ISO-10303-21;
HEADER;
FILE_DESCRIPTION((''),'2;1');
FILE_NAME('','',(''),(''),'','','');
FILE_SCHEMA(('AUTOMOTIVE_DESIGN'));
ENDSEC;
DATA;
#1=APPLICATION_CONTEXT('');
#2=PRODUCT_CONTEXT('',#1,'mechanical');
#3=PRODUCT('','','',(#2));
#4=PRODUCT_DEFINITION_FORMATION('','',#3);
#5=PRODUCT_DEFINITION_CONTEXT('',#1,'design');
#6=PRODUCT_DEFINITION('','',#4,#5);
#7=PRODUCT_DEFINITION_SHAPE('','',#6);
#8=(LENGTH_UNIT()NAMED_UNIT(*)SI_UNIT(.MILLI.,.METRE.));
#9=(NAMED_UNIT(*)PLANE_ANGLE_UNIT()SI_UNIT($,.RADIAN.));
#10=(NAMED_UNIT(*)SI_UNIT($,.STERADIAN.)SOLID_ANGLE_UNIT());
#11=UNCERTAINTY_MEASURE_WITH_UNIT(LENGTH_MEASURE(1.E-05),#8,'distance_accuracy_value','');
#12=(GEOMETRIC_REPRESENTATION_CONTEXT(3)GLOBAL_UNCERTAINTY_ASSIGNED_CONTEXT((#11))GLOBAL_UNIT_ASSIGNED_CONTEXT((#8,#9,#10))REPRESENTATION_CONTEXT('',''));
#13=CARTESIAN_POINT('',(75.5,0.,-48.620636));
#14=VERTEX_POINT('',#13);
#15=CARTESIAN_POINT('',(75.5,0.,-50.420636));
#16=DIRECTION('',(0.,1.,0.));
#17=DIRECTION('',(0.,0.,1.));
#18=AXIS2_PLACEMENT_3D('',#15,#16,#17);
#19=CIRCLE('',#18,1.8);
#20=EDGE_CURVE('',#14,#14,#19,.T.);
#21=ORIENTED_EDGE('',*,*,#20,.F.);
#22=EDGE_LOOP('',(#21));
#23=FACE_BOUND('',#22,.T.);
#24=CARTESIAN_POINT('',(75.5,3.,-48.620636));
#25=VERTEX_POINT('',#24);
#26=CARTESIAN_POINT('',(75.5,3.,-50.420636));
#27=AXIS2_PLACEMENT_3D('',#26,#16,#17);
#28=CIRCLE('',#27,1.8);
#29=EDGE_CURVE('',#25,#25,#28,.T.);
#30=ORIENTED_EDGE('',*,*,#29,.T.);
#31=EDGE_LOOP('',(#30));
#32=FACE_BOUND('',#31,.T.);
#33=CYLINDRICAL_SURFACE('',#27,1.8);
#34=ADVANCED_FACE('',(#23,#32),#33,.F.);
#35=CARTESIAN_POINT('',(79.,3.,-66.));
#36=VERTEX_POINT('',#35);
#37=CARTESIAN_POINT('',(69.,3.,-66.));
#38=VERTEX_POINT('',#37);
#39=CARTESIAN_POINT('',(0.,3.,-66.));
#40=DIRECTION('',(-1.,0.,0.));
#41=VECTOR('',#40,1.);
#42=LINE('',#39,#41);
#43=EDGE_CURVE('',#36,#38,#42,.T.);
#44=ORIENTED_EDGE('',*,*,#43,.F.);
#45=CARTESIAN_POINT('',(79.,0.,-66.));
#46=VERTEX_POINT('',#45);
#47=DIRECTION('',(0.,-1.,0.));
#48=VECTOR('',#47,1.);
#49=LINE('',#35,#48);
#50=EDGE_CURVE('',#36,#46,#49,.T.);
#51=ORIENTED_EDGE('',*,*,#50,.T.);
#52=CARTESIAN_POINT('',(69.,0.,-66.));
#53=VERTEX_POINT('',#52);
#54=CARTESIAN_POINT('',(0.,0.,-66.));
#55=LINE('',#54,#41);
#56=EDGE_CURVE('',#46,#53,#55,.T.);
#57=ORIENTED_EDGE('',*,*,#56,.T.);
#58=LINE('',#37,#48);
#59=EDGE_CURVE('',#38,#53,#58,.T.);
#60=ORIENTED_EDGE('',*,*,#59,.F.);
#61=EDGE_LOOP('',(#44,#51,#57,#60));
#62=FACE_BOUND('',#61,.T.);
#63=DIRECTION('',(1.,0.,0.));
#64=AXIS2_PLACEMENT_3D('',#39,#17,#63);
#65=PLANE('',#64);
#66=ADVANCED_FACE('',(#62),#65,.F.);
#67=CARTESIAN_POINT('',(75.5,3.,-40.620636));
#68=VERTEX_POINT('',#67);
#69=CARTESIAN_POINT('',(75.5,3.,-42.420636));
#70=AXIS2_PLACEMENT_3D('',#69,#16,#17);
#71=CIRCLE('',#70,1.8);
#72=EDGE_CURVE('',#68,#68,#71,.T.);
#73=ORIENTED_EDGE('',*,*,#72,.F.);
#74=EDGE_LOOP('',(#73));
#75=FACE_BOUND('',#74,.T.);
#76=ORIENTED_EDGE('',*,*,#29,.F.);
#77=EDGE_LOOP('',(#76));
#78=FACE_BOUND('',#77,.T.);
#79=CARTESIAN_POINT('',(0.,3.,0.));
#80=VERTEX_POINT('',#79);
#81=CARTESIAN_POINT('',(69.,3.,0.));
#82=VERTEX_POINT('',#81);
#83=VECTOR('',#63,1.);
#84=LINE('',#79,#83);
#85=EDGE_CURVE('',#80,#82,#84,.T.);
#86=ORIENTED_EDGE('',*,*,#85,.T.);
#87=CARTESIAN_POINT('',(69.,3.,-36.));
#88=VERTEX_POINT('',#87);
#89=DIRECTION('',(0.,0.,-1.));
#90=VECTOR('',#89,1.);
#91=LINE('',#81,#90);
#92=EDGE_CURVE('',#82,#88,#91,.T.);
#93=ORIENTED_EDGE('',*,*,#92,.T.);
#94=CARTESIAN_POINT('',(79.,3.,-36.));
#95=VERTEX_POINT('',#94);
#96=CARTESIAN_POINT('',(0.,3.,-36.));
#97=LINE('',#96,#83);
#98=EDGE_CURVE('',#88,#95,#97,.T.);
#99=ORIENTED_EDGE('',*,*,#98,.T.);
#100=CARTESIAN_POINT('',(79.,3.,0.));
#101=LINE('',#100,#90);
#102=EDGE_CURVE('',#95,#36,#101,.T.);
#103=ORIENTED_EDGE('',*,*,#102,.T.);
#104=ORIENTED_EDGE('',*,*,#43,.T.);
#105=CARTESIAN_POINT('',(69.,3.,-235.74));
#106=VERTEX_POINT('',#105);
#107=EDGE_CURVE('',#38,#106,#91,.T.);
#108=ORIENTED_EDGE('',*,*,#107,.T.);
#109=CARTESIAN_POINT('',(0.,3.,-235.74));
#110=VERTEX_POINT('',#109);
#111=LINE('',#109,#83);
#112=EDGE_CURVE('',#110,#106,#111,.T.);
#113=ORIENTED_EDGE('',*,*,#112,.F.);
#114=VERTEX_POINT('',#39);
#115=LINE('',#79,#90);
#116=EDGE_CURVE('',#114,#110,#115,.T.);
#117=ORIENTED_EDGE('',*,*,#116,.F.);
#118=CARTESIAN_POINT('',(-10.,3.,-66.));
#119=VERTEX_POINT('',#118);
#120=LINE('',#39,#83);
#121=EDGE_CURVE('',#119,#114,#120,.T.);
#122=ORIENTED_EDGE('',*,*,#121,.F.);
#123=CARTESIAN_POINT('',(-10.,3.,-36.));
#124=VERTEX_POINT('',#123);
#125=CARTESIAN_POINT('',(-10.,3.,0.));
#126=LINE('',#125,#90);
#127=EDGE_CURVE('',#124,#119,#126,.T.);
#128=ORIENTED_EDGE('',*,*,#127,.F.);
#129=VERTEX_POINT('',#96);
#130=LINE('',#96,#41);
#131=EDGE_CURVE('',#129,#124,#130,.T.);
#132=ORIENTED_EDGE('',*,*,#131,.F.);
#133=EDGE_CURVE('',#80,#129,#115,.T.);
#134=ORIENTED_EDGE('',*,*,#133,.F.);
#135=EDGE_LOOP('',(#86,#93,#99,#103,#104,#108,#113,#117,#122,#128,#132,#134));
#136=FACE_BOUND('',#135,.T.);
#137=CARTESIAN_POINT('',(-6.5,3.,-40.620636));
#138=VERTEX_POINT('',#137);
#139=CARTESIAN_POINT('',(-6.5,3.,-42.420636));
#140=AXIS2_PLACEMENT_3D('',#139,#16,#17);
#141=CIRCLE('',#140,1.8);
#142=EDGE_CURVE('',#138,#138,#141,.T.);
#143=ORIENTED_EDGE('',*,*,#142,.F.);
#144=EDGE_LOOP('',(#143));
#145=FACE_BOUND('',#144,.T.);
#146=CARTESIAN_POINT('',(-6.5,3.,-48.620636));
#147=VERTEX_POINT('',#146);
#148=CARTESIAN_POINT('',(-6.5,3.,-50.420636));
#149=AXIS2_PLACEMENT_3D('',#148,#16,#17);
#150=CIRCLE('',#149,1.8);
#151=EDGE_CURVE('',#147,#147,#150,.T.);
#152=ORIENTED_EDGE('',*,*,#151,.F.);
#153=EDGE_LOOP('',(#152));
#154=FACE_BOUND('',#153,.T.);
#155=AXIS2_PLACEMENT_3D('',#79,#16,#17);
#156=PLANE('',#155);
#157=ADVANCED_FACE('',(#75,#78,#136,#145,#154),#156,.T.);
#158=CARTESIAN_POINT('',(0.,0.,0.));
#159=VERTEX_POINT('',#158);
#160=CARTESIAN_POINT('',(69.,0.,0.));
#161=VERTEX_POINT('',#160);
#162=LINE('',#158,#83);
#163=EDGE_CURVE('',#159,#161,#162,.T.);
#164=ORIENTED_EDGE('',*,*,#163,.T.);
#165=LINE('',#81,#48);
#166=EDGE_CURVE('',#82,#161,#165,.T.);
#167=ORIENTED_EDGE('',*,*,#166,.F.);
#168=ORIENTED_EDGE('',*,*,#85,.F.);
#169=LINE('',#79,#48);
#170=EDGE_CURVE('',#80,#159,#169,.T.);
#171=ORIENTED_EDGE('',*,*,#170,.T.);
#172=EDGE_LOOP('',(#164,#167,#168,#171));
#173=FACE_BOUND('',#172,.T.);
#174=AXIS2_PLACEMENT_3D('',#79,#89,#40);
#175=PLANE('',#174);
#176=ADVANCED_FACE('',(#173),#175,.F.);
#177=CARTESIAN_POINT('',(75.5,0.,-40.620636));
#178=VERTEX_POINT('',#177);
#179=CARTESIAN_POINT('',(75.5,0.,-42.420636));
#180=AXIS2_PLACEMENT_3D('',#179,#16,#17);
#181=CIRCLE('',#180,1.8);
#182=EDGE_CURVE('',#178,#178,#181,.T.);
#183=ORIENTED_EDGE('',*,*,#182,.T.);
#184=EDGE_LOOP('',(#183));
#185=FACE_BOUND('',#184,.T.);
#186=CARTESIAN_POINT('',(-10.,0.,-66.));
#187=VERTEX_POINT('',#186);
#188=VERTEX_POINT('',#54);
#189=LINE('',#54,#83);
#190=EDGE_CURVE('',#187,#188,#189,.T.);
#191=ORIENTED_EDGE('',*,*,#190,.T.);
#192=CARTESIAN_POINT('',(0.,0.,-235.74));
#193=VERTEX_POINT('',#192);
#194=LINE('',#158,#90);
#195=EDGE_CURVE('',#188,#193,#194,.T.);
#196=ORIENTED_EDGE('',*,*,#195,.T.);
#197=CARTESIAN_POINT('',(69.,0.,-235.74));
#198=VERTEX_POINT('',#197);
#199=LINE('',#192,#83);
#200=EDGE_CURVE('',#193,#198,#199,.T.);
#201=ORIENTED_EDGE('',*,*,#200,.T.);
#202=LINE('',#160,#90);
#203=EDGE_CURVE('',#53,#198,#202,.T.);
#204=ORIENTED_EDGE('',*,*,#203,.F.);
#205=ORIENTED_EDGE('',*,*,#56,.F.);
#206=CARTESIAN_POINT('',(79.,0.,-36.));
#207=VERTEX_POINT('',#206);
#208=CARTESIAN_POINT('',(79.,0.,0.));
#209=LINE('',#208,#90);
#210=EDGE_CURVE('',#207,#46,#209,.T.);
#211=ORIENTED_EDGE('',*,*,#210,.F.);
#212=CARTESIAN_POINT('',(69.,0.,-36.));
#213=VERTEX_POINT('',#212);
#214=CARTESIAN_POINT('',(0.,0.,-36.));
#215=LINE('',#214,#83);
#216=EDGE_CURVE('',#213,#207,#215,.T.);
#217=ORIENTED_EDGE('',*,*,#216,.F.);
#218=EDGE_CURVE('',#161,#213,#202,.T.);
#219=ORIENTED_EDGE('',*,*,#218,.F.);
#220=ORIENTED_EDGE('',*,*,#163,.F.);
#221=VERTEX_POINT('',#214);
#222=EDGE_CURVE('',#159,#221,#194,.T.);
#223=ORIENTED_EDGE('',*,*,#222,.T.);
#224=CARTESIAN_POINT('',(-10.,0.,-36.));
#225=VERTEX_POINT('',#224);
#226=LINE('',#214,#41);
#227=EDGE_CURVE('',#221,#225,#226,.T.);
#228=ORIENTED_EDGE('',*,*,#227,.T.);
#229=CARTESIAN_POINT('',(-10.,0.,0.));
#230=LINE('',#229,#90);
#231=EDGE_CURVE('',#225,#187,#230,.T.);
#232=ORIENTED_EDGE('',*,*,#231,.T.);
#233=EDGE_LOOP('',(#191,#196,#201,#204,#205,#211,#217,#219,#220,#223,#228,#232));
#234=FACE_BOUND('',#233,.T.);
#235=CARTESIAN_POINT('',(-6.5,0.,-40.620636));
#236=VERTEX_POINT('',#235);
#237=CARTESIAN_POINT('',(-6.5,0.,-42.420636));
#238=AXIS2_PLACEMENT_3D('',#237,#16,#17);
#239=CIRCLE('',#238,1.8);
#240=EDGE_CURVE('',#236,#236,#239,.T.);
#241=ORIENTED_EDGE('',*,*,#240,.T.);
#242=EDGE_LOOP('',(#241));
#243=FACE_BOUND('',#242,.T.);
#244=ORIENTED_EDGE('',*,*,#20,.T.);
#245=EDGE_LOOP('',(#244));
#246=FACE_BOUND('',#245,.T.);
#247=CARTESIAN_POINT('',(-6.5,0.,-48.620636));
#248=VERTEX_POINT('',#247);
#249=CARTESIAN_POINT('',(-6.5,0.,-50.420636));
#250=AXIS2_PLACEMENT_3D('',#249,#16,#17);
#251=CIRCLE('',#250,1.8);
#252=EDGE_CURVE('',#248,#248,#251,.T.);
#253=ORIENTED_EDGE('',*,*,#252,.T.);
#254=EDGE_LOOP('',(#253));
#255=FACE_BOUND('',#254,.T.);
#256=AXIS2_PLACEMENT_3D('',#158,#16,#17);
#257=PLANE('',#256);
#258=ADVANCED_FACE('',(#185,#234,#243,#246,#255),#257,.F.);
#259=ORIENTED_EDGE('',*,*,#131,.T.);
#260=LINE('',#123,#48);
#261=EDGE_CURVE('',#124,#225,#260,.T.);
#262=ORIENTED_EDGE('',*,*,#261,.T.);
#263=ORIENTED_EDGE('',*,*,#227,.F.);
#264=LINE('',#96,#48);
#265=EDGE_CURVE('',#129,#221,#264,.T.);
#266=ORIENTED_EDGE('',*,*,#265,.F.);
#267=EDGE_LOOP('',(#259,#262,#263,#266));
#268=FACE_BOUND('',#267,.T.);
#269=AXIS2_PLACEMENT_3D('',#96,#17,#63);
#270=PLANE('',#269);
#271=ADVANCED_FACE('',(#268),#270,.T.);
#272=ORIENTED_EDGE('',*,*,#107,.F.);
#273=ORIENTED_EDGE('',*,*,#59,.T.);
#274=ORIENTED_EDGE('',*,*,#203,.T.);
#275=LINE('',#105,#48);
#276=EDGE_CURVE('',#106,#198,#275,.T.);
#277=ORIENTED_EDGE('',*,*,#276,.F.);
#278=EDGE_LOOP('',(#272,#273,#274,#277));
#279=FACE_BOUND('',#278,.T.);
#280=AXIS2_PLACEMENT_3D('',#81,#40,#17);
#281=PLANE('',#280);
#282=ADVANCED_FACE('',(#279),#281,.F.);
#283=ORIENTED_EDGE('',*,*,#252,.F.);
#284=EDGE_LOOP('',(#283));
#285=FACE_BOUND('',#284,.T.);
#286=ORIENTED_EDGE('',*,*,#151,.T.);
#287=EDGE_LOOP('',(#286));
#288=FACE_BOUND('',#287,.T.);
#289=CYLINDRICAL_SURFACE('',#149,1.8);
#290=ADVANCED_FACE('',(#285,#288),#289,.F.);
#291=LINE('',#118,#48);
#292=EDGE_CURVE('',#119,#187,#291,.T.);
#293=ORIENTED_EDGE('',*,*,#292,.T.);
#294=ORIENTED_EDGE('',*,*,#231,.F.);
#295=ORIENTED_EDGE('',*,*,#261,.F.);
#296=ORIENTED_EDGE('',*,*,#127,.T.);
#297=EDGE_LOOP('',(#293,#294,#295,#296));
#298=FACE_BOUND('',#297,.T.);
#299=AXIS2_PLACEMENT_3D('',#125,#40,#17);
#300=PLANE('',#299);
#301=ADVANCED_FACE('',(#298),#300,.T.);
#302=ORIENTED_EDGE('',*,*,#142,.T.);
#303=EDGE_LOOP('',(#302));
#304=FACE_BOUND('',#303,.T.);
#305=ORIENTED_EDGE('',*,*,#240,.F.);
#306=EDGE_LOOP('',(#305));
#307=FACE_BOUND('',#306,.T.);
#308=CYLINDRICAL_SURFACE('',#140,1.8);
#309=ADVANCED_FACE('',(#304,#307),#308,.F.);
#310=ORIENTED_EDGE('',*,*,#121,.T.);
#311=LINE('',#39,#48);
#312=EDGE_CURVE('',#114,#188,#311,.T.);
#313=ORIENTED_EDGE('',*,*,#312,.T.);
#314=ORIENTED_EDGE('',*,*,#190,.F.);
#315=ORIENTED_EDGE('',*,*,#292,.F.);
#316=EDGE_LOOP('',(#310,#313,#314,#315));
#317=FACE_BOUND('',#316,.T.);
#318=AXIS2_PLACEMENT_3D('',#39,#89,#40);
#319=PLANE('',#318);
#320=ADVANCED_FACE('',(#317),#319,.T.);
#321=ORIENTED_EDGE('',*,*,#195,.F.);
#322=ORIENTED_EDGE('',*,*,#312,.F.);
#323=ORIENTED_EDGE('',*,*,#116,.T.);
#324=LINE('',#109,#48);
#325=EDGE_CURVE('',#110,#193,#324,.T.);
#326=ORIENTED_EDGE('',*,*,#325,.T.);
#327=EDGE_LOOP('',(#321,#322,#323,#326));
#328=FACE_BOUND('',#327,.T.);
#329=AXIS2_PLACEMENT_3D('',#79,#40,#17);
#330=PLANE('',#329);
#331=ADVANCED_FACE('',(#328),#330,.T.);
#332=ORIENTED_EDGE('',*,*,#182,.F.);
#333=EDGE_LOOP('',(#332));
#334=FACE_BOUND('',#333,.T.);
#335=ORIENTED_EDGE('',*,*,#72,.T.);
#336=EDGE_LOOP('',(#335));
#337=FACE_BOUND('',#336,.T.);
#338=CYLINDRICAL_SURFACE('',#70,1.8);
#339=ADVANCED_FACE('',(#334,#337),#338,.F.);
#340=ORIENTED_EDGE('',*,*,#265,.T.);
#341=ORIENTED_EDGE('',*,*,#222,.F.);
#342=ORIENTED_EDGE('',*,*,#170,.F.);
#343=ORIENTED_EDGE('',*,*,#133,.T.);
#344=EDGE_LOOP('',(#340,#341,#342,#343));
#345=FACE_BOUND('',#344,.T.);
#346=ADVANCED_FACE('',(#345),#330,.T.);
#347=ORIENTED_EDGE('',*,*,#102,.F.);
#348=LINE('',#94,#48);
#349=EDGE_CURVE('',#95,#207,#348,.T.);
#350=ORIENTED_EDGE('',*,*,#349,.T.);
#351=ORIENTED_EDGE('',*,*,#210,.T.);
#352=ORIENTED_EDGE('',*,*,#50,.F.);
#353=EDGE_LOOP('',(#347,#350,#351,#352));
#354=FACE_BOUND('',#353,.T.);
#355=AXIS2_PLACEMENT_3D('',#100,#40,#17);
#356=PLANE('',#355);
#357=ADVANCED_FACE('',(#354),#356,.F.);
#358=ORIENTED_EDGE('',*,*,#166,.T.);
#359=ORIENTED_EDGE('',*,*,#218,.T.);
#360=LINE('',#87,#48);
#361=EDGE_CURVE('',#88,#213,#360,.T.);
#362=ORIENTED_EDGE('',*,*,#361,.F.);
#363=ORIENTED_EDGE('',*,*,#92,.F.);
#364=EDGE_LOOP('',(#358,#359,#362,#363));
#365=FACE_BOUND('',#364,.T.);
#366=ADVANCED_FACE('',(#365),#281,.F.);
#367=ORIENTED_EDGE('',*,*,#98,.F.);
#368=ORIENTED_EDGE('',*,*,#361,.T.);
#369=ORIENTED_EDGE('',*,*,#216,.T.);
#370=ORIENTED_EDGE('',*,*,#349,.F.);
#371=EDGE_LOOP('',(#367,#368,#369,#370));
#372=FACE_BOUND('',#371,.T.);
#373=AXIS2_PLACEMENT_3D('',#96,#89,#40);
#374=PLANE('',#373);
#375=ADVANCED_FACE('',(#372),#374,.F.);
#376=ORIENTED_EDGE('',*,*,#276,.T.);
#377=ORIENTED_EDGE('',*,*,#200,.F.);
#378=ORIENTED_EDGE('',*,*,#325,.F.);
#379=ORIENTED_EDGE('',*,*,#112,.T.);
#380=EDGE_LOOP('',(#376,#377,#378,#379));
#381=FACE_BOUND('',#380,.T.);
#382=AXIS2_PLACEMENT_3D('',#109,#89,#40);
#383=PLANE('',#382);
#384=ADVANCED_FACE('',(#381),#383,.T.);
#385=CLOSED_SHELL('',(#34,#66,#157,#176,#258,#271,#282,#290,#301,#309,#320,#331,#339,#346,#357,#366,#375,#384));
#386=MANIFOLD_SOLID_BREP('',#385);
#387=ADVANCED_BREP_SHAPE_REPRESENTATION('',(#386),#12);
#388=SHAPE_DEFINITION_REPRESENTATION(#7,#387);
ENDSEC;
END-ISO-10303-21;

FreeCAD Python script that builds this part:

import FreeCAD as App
import Part
import Sketcher
Q = App.Units.Quantity


def add_polygon(sketch, points):
    """Adds a closed chain of lines whose ends are joined by coincident constraints."""
    first, n = sketch.GeometryCount, len(points)
    for a, b in zip(points, points[1:] + points[:1]):
        sketch.addGeometry(Part.LineSegment(App.Vector(*a, 0), App.Vector(*b, 0)), False)
    for i in range(n):
        sketch.addConstraint(Sketcher.Constraint("Coincident", first + i, 2, first + (i + 1) % n, 1))

doc = App.newDocument("Part")
params = doc.addObject("Spreadsheet::Sheet", "Params")
for row, (alias, value) in enumerate([
    ("sketch1_width", "10 mm"),
    ("sketch1_width2", "69 mm"),
    ("sketch1_height", "30 mm"),
    ("sketch1_height2", "36 mm"),
    ("sketch1_height3", "169.74 mm"),
    ("pad1_length", "3 mm"),
    ("sketch2_diameter", "3.6 mm"),
    ("hole_diameter", "3.6 mm"),
], start=1):
    params.set(f"A{row}", alias)
    params.set(f"B{row}", "=" + value)
    params.setAlias(f"B{row}", alias)

body = doc.addObject("PartDesign::Body", "Body")

# Sketch on XZ plane
sketch1 = body.newObject("Sketcher::SketchObject", "Sketch")
sketch1.AttachmentSupport = (doc.getObject("XZ_Plane"), [""])
sketch1.MapMode = "FlatFace"
add_polygon(sketch1, [(-10, -66), (-10, -36), (0, -36), (0, 0), (69, 0), (69, -36), (79, -36), (79, -66), (69, -66), (69, -236), (0, -236), (0, -66)])  # lines 0-11
sketch1.addConstraint(Sketcher.Constraint("Vertical", 0))
sketch1.addConstraint(Sketcher.Constraint("Horizontal", 1))
sketch1.addConstraint(Sketcher.Constraint("Vertical", 2))
sketch1.addConstraint(Sketcher.Constraint("Horizontal", 3))
sketch1.addConstraint(Sketcher.Constraint("Vertical", 4))
sketch1.addConstraint(Sketcher.Constraint("Horizontal", 5))
sketch1.addConstraint(Sketcher.Constraint("Vertical", 6))
sketch1.addConstraint(Sketcher.Constraint("Horizontal", 7))
sketch1.addConstraint(Sketcher.Constraint("Vertical", 8))
sketch1.addConstraint(Sketcher.Constraint("Horizontal", 9))
sketch1.addConstraint(Sketcher.Constraint("Vertical", 10))
sketch1.addConstraint(Sketcher.Constraint("Horizontal", 11))
sketch1.addConstraint(Sketcher.Constraint("Coincident", 2, 2, -1, 1))
sketch1.addConstraint(Sketcher.Constraint("PointOnObject", 9, 2, -2))
sketch1.addConstraint(Sketcher.Constraint("Horizontal", 1, 2, 4, 2))
sketch1.addConstraint(Sketcher.Constraint("Horizontal", 7, 2, 10, 2))
sketch1.addConstraint(Sketcher.Constraint("Vertical", 4, 2, 7, 2))
sketch1.addConstraint(Sketcher.Constraint("Equal", 1, 5))
sketch1.addConstraint(Sketcher.Constraint("DistanceX", 1, 1, 1, 2, Q("10 mm")))
sketch1.addConstraint(Sketcher.Constraint("DistanceX", 3, 1, 3, 2, Q("69 mm")))
sketch1.addConstraint(Sketcher.Constraint("DistanceY", 0, 1, 0, 2, Q("30 mm")))
sketch1.addConstraint(Sketcher.Constraint("DistanceY", 2, 1, 2, 2, Q("36 mm")))
sketch1.addConstraint(Sketcher.Constraint("DistanceY", 8, 2, 8, 1, Q("169.74 mm")))
sketch1.setExpression("Constraints[30]", "Params.sketch1_width")
sketch1.setExpression("Constraints[31]", "Params.sketch1_width2")
sketch1.setExpression("Constraints[32]", "Params.sketch1_height")
sketch1.setExpression("Constraints[33]", "Params.sketch1_height2")
sketch1.setExpression("Constraints[34]", "Params.sketch1_height3")
pad1 = body.newObject("PartDesign::Pad", "Pad")
pad1.Profile = sketch1
pad1.setExpression("Length", "Params.pad1_length")
pad1.Reversed = True

# Sketch on XZ plane
sketch2 = body.newObject("Sketcher::SketchObject", "Sketch001")
sketch2.AttachmentSupport = (doc.getObject("XZ_Plane"), [""])
sketch2.MapMode = "FlatFace"
sketch2.AttachmentOffset = App.Placement(App.Vector(0, 0, -3), App.Rotation())
sketch2.addGeometry(Part.Circle(App.Vector(75.5, -50.4, 0), App.Vector(0, 0, 1), 1.8), False)
sketch2.addGeometry(Part.Circle(App.Vector(75.5, -42.4, 0), App.Vector(0, 0, 1), 1.8), False)
sketch2.addConstraint(Sketcher.Constraint("Equal", 0, 1))
sketch2.addConstraint(Sketcher.Constraint("Vertical", 0, 3, 1, 3))
sketch2.addConstraint(Sketcher.Constraint("Diameter", 0, Q("3.6 mm")))
sketch2.addConstraint(Sketcher.Constraint("DistanceY", 0, 3, 1, 3, Q("8 mm")))
sketch2.addConstraint(Sketcher.Constraint("DistanceX", -1, 1, 0, 3, Q("75.5 mm")))
sketch2.addConstraint(Sketcher.Constraint("DistanceY", 0, 3, -1, 1, Q("50.420636 mm")))
sketch2.setExpression("Constraints[2]", "Params.sketch2_diameter")
doc.recompute()
hole = body.newObject("PartDesign::Hole", "Hole")
hole.Profile = sketch2
hole.ThreadType = "None"
hole.setExpression("Diameter", "Params.hole_diameter")
hole.DepthType = "ThroughAll"
hole.Reversed = True
doc.recompute()

datumplane = body.newObject("PartDesign::Plane", "DatumPlane")
datumplane.AttachmentSupport = (doc.getObject("YZ_Plane"), [""])
datumplane.MapMode = "FlatFace"
datumplane.AttachmentOffset = App.Placement(App.Vector(0, 0, 34.5), App.Rotation())
mirrored = body.newObject("PartDesign::Mirrored", "Mirrored")
mirrored.Originals = [hole]
mirrored.MirrorPlane = (datumplane, [""])
body.Tip = mirrored

doc.recompute()
